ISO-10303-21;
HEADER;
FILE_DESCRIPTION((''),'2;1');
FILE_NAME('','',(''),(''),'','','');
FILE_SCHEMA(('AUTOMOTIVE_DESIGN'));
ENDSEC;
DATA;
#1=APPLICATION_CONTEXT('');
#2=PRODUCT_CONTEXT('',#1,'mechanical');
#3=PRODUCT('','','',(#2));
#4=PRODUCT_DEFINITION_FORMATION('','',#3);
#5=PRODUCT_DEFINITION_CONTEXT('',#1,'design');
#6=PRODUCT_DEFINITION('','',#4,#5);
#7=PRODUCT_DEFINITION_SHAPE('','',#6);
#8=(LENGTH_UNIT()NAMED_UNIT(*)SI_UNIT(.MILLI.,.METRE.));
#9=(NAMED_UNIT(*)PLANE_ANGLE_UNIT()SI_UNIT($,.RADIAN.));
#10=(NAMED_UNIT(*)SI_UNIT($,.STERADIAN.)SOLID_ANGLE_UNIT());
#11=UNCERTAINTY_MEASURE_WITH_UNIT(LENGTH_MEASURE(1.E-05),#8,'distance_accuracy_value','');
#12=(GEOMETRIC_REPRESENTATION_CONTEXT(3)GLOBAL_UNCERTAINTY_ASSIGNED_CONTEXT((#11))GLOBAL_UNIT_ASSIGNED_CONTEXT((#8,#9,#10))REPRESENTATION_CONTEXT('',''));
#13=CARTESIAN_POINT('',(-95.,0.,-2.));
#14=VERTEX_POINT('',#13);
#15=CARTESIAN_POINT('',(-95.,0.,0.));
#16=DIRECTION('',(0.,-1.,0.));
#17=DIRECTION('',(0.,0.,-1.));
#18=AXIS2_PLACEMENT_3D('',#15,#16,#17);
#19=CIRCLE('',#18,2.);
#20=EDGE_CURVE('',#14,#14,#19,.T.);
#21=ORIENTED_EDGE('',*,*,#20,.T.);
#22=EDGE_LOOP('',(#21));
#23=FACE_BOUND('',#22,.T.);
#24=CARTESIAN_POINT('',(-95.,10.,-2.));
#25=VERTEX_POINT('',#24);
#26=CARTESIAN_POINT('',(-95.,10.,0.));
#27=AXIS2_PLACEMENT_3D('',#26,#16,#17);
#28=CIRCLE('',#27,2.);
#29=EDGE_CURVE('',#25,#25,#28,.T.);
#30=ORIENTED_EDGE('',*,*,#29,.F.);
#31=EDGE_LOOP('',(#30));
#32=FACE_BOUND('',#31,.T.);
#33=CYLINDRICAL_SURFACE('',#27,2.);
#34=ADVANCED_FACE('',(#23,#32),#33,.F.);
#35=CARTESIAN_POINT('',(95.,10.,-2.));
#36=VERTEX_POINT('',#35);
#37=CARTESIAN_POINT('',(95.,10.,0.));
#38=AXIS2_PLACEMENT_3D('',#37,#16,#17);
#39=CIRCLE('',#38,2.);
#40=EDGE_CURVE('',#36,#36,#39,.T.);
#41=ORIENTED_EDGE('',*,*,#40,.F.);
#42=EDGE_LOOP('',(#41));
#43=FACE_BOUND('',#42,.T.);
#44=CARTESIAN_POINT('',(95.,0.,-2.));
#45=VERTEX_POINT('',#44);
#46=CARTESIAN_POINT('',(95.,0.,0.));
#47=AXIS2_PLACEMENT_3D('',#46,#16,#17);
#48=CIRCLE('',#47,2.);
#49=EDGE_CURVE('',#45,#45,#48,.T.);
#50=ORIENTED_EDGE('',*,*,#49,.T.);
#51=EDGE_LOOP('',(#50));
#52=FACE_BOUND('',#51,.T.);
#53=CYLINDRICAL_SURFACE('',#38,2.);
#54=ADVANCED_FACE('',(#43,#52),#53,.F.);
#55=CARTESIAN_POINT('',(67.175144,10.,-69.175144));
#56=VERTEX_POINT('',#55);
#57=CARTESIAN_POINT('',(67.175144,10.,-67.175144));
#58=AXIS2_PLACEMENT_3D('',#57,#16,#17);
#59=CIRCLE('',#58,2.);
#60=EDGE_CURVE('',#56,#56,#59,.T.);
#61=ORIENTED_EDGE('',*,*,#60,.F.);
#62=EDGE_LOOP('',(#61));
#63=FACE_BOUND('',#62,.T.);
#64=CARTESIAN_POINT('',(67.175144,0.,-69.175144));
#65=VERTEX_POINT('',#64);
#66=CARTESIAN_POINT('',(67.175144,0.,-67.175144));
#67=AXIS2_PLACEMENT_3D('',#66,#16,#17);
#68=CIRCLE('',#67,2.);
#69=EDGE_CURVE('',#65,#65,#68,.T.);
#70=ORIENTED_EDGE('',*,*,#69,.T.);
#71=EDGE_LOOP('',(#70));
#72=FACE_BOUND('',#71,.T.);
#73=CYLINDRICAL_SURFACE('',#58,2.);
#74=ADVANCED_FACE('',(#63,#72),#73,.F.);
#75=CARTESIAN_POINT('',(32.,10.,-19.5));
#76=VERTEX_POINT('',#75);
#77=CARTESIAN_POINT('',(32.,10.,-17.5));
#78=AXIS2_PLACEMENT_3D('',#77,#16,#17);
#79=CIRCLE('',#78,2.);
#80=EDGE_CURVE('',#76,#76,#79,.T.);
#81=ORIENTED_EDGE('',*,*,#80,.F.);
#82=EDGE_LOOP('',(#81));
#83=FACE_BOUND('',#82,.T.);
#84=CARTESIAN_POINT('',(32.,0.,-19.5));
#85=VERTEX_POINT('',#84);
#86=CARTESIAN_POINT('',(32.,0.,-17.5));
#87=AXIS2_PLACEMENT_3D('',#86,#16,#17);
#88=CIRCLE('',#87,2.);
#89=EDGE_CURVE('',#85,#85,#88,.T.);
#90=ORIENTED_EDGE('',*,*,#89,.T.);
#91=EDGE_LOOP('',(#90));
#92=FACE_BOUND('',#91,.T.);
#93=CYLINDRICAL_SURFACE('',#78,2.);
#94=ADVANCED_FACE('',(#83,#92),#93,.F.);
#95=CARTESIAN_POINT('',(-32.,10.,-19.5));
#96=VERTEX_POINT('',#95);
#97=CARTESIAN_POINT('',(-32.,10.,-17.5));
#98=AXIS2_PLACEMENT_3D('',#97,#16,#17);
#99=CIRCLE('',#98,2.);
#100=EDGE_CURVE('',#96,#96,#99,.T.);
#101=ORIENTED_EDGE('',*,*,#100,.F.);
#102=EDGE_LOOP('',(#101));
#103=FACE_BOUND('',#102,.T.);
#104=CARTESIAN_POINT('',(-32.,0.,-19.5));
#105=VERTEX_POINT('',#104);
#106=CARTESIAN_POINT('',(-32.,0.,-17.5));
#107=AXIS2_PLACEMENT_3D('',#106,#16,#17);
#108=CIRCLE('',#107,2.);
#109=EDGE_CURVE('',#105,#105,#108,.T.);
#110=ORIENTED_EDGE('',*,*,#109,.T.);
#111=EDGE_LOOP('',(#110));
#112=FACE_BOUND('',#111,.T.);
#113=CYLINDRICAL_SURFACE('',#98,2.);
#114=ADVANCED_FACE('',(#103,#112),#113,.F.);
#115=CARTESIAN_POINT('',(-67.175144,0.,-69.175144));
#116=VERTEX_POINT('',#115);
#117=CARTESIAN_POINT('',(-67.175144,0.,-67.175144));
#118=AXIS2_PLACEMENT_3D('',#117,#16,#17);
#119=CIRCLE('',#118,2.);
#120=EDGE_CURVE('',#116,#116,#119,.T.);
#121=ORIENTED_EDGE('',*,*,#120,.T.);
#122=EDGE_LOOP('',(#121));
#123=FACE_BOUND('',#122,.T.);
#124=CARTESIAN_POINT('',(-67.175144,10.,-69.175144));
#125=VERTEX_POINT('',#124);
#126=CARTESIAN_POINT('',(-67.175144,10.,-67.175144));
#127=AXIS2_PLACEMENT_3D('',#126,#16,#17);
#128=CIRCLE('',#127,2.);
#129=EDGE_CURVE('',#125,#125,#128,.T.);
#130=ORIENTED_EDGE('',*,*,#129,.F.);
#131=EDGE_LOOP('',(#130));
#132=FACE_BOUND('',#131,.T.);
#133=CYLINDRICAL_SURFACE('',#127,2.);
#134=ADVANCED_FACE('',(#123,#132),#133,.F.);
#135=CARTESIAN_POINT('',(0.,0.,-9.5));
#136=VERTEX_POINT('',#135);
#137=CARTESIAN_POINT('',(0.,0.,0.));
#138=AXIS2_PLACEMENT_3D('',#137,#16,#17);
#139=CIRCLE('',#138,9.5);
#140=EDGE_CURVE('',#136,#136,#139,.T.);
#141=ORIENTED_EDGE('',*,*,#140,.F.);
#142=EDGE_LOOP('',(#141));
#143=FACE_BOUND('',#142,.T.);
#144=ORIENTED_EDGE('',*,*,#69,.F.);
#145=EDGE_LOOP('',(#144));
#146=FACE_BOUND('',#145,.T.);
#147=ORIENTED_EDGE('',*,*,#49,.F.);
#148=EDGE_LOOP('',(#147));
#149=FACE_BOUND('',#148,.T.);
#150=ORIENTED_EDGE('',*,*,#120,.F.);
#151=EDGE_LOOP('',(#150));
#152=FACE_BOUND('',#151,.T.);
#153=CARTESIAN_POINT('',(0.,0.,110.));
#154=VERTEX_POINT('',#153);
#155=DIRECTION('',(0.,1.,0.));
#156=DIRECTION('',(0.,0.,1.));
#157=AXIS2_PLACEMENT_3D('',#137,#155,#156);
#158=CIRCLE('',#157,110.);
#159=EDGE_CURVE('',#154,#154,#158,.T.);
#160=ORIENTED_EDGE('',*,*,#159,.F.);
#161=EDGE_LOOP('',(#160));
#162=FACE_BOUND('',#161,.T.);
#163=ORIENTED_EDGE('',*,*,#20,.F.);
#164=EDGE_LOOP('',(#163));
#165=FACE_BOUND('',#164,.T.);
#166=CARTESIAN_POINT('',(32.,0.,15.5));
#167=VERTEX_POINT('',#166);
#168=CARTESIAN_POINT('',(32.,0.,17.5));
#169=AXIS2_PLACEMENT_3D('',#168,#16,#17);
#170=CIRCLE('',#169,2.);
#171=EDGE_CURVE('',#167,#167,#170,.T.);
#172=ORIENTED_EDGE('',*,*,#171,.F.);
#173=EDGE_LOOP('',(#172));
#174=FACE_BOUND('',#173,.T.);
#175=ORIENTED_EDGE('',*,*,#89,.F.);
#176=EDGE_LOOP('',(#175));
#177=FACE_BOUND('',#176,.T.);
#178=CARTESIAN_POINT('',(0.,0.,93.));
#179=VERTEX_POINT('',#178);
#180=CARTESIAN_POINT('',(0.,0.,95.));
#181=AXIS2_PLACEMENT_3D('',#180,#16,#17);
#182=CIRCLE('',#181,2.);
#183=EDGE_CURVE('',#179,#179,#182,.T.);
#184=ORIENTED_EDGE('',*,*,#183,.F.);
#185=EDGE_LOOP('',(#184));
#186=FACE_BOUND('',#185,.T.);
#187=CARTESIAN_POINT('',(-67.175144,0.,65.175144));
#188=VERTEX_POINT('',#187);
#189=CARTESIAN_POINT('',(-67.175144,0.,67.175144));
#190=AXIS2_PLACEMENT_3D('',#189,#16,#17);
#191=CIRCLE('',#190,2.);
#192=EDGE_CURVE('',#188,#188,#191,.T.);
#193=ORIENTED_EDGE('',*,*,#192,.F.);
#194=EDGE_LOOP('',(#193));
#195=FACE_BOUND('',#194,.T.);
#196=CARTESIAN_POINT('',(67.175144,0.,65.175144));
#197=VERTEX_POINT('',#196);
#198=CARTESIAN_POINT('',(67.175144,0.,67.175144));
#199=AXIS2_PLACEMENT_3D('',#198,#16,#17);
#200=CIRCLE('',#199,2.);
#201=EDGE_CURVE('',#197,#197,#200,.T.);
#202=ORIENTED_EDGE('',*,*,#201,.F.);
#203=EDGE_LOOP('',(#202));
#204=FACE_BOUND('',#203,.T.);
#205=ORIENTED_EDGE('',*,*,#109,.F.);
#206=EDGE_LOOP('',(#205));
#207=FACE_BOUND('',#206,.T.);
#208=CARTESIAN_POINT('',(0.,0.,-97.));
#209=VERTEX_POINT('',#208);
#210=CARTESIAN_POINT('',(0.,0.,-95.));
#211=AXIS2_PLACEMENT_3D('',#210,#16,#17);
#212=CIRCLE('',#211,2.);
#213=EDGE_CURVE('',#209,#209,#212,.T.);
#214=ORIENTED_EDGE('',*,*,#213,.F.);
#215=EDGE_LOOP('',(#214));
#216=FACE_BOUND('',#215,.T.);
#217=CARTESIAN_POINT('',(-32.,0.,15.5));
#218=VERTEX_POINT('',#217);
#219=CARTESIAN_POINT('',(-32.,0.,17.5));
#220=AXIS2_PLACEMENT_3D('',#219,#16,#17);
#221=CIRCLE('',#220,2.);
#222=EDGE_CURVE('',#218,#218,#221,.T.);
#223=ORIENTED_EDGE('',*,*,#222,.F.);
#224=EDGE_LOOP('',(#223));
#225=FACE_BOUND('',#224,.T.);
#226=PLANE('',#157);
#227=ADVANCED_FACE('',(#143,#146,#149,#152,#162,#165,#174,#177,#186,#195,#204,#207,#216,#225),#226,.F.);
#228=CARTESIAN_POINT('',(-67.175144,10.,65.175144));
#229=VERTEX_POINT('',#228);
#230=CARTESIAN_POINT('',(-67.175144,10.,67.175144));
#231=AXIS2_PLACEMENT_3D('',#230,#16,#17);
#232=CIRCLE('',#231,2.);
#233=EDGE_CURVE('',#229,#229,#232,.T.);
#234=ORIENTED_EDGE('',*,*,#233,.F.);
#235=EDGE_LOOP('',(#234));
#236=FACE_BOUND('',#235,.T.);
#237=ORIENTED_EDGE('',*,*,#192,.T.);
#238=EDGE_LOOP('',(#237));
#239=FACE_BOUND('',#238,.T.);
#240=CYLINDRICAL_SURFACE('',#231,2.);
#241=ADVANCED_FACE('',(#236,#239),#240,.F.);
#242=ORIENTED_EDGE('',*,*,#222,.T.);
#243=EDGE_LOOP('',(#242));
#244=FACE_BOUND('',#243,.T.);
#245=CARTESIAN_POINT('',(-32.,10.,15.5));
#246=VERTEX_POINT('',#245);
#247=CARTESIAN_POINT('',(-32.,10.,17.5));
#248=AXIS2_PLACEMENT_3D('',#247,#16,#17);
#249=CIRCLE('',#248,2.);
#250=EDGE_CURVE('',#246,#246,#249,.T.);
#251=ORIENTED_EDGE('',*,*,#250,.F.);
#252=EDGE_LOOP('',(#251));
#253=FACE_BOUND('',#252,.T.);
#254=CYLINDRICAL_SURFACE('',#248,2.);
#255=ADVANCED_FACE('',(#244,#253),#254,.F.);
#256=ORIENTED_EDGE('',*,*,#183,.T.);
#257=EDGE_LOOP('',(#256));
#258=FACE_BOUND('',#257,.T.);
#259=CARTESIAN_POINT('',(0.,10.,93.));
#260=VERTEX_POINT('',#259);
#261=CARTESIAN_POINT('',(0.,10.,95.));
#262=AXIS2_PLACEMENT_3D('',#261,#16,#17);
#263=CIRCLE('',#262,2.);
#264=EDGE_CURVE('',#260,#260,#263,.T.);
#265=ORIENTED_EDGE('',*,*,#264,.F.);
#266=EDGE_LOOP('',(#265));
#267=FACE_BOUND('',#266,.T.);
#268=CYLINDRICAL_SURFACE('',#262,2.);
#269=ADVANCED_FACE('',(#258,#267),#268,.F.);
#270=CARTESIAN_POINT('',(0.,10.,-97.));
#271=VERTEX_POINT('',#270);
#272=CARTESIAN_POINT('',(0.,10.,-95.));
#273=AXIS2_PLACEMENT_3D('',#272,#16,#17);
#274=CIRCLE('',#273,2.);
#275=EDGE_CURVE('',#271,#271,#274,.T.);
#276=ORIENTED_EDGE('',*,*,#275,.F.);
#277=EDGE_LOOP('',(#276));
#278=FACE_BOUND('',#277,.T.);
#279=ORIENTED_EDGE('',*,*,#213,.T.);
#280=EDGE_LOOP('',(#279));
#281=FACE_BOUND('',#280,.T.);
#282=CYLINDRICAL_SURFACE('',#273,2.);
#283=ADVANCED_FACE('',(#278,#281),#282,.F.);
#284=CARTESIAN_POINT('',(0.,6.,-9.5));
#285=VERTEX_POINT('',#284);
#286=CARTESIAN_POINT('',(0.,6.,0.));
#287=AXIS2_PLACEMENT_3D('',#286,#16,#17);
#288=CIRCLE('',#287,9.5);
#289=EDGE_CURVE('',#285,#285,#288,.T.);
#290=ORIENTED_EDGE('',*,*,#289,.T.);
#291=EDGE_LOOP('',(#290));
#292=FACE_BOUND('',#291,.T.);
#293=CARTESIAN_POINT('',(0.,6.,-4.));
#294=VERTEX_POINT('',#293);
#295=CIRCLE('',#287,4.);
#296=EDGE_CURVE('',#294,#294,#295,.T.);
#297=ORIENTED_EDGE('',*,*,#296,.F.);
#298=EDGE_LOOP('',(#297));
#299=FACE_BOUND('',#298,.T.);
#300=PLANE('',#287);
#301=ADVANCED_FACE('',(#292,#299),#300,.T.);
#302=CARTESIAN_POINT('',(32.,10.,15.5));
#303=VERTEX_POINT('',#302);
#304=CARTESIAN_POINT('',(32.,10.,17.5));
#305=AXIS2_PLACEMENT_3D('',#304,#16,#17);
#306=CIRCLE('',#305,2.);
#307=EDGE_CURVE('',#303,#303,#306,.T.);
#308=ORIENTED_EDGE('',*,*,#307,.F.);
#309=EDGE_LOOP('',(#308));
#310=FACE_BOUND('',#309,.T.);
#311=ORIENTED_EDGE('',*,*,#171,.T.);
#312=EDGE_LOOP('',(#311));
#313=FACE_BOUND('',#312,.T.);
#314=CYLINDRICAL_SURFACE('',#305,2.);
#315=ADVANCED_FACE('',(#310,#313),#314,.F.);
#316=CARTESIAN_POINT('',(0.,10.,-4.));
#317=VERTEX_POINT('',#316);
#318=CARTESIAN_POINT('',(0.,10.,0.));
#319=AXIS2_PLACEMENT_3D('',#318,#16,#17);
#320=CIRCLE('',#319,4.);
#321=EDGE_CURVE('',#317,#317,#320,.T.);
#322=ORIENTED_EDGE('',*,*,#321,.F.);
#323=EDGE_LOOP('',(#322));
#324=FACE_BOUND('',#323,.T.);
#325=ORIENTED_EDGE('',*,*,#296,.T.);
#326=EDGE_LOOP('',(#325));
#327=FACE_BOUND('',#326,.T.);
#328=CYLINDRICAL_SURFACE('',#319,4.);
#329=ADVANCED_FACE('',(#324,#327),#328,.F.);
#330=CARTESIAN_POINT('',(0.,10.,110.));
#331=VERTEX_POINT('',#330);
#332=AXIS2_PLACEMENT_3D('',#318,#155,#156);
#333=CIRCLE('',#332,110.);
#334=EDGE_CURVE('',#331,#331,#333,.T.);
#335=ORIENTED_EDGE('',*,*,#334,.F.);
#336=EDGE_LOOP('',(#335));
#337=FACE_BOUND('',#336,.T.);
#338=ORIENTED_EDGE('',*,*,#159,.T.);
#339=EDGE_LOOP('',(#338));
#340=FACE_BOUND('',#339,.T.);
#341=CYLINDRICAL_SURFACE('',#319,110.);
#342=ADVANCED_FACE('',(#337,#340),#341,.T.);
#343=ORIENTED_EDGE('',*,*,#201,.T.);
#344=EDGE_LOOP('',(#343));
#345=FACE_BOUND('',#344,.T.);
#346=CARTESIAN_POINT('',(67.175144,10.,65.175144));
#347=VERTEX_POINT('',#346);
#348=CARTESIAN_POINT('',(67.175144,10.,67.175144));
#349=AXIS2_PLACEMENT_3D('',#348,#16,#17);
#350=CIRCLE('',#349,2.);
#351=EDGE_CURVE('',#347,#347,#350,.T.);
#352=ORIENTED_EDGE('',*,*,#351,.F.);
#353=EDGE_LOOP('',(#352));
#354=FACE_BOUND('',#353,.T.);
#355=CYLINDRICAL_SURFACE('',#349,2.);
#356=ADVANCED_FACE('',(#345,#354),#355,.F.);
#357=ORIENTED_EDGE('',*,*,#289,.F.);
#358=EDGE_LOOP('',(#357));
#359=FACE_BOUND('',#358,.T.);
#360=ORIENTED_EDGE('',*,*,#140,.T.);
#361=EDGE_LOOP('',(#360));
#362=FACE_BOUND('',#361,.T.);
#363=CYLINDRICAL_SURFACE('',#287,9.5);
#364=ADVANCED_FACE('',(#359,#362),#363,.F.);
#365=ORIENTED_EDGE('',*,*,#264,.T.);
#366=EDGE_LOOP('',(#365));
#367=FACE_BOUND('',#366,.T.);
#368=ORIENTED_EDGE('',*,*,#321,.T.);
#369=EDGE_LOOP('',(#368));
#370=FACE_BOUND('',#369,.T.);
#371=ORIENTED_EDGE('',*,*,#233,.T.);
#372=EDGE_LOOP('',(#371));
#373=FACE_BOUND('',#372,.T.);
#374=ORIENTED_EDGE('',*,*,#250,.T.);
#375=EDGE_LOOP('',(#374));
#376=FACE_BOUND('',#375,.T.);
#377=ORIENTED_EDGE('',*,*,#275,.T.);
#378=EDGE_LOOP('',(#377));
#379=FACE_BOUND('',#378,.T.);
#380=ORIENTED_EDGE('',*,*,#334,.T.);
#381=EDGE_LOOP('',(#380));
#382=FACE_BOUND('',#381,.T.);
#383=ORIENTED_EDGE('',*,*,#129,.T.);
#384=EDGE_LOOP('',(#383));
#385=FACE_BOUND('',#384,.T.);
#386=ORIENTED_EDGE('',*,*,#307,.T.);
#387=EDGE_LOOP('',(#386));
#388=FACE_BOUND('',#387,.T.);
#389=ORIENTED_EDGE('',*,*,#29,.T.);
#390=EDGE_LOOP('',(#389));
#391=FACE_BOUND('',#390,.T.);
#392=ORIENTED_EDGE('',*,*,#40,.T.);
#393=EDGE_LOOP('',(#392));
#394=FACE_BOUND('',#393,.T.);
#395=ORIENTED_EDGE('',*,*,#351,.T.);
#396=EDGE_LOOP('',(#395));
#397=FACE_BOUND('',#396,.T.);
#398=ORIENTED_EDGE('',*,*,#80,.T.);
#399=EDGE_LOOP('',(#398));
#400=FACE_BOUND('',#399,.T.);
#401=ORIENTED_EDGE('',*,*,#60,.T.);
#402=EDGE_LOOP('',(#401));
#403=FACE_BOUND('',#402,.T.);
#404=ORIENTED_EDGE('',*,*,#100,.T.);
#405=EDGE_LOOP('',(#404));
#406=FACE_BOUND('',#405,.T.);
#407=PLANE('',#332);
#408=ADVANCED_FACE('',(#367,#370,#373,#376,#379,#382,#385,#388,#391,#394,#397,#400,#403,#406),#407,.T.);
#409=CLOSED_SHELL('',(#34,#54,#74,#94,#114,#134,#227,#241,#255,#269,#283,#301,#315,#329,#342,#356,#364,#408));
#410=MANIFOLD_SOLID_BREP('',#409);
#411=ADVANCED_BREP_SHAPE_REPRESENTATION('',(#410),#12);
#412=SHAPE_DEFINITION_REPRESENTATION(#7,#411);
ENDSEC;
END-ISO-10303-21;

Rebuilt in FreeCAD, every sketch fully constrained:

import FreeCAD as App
import Part
import Sketcher

V = App.Vector

doc = App.newDocument("Part")
params = doc.addObject("Spreadsheet::Sheet", "Params")
for row, (alias, value) in enumerate([
    ("sketch1_diameter", "220 mm"),
    ("pad1_length", "10 mm"),
    ("sketch2_diameter", "19 mm"),
    ("pocket1_length", "6 mm"),
    ("sketch3_diameter", "8 mm"),
    ("sketch4_diameter", "4 mm"),
    ("sketch5_diameter", "4 mm"),
    ("pocket4_length", "10 mm"),
], start=1):
    params.set(f"A{row}", alias)
    params.set(f"B{row}", "=" + value)
    params.setAlias(f"B{row}", alias)

body = doc.addObject("PartDesign::Body", "Body")

sketch1 = doc.addObject("Sketcher::SketchObject", "Sketch")
body.addObject(sketch1)
sketch1.AttachmentSupport = (doc.XZ_Plane, [""])
sketch1.MapMode = "FlatFace"
sketch1.addGeometry(Part.Circle(V(0, 0, 0), V(0, 0, 1), 110), False)
sketch1.addConstraint(Sketcher.Constraint("Coincident", 0, 3, -1, 1))
sketch1.addConstraint(Sketcher.Constraint("Diameter", 0, 220.0))
sketch1.setExpression("Constraints[1]", "Params.sketch1_diameter")
pad1 = doc.addObject("PartDesign::Pad", "Pad")
body.addObject(pad1)
pad1.Profile = sketch1
pad1.setExpression("Length", "Params.pad1_length")
pad1.Reversed = True

sketch2 = doc.addObject("Sketcher::SketchObject", "Sketch001")
body.addObject(sketch2)
sketch2.AttachmentSupport = (doc.XZ_Plane, [""])
sketch2.MapMode = "FlatFace"
sketch2.addGeometry(Part.Circle(V(0, 0, 0), V(0, 0, 1), 10), False)
sketch2.addConstraint(Sketcher.Constraint("Coincident", 0, 3, -1, 1))
sketch2.addConstraint(Sketcher.Constraint("Diameter", 0, 19.0))
sketch2.setExpression("Constraints[1]", "Params.sketch2_diameter")
pocket1 = doc.addObject("PartDesign::Pocket", "Pocket")
body.addObject(pocket1)
pocket1.Profile = sketch2
pocket1.setExpression("Length", "Params.pocket1_length")

sketch3 = doc.addObject("Sketcher::SketchObject", "Sketch002")
body.addObject(sketch3)
sketch3.AttachmentSupport = (doc.XZ_Plane, [""])
sketch3.MapMode = "FlatFace"
sketch3.AttachmentOffset = App.Placement(V(0, 0, -6), App.Rotation())
sketch3.addGeometry(Part.Circle(V(0, 0, 0), V(0, 0, 1), 4), False)
sketch3.addConstraint(Sketcher.Constraint("Coincident", 0, 3, -1, 1))
sketch3.addConstraint(Sketcher.Constraint("Diameter", 0, 8.0))
sketch3.setExpression("Constraints[1]", "Params.sketch3_diameter")
pocket2 = doc.addObject("PartDesign::Pocket", "Pocket001")
body.addObject(pocket2)
pocket2.Profile = sketch3
pocket2.Type = "ThroughAll"

sketch4 = doc.addObject("Sketcher::SketchObject", "Sketch003")
body.addObject(sketch4)
sketch4.AttachmentSupport = (doc.XZ_Plane, [""])
sketch4.MapMode = "FlatFace"
sketch4.addGeometry(Part.Circle(V(-32, 17.5, 0), V(0, 0, 1), 2), False)
sketch4.addGeometry(Part.Circle(V(-32, -17.5, 0), V(0, 0, 1), 2), False)
sketch4.addGeometry(Part.Circle(V(32, -17.5, 0), V(0, 0, 1), 2), False)
sketch4.addGeometry(Part.Circle(V(32, 17.5, 0), V(0, 0, 1), 2), False)
sketch4.addConstraint(Sketcher.Constraint("Equal", 0, 1))
sketch4.addConstraint(Sketcher.Constraint("Equal", 1, 2))
sketch4.addConstraint(Sketcher.Constraint("Equal", 2, 3))
sketch4.addConstraint(Sketcher.Constraint("Symmetric", 0, 3, 2, 3, -1, 1))
sketch4.addConstraint(Sketcher.Constraint("Symmetric", 1, 3, 3, 3, -1, 1))
sketch4.addConstraint(Sketcher.Constraint("Symmetric", 1, 3, 2, 3, -2))
sketch4.addConstraint(Sketcher.Constraint("Diameter", 0, 4.0))
sketch4.addConstraint(Sketcher.Constraint("DistanceX", 0, 3, -1, 1, 32.0))
sketch4.addConstraint(Sketcher.Constraint("DistanceY", 1, 3, 0, 3, 35.0))
sketch4.setExpression("Constraints[6]", "Params.sketch4_diameter")
pocket3 = doc.addObject("PartDesign::Pocket", "Pocket002")
body.addObject(pocket3)
pocket3.Profile = sketch4
pocket3.Type = "ThroughAll"

sketch5 = doc.addObject("Sketcher::SketchObject", "Sketch004")
body.addObject(sketch5)
sketch5.AttachmentSupport = (doc.XZ_Plane, [""])
sketch5.MapMode = "FlatFace"
sketch5.addGeometry(Part.Circle(V(0, 95, 0), V(0, 0, 1), 2), False)
sketch5.addGeometry(Part.Circle(V(67.2, 67.2, 0), V(0, 0, 1), 2), False)
sketch5.addGeometry(Part.Circle(V(95, 0, 0), V(0, 0, 1), 2), False)
sketch5.addGeometry(Part.Circle(V(67.2, -67.2, 0), V(0, 0, 1), 2), False)
sketch5.addGeometry(Part.Circle(V(0, -95, 0), V(0, 0, 1), 2), False)
sketch5.addGeometry(Part.Circle(V(-67.2, -67.2, 0), V(0, 0, 1), 2), False)
sketch5.addGeometry(Part.Circle(V(-95, 0, 0), V(0, 0, 1), 2), False)
sketch5.addGeometry(Part.Circle(V(-67.2, 67.2, 0), V(0, 0, 1), 2), False)
sketch5.addConstraint(Sketcher.Constraint("Equal", 0, 1))
sketch5.addConstraint(Sketcher.Constraint("Equal", 1, 2))
sketch5.addConstraint(Sketcher.Constraint("Equal", 2, 3))
sketch5.addConstraint(Sketcher.Constraint("Equal", 3, 4))
sketch5.addConstraint(Sketcher.Constraint("Equal", 4, 5))
sketch5.addConstraint(Sketcher.Constraint("Equal", 5, 6))
sketch5.addConstraint(Sketcher.Constraint("Equal", 6, 7))
sketch5.addConstraint(Sketcher.Constraint("Symmetric", 0, 3, 4, 3, -1, 1))
sketch5.addConstraint(Sketcher.Constraint("Symmetric", 1, 3, 5, 3, -1, 1))
sketch5.addConstraint(Sketcher.Constraint("Symmetric", 2, 3, 6, 3, -1, 1))
sketch5.addConstraint(Sketcher.Constraint("Symmetric", 3, 3, 7, 3, -1, 1))
sketch5.addConstraint(Sketcher.Constraint("Symmetric", 3, 3, 5, 3, -2))
sketch5.addConstraint(Sketcher.Constraint("PointOnObject", 0, 3, -2))
sketch5.addConstraint(Sketcher.Constraint("PointOnObject", 2, 3, -1))
sketch5.addConstraint(Sketcher.Constraint("Diameter", 0, 4.0))
sketch5.addConstraint(Sketcher.Constraint("DistanceY", -1, 1, 0, 3, 95.0))
sketch5.addConstraint(Sketcher.Constraint("DistanceX", -1, 1, 2, 3, 95.0))
sketch5.addConstraint(Sketcher.Constraint("DistanceY", 3, 3, 1, 3, 134.350288))
sketch5.addConstraint(Sketcher.Constraint("DistanceX", 5, 3, 3, 3, 134.350288))
sketch5.setExpression("Constraints[14]", "Params.sketch5_diameter")
pocket4 = doc.addObject("PartDesign::Pocket", "Pocket003")
body.addObject(pocket4)
pocket4.Profile = sketch5
pocket4.setExpression("Length", "Params.pocket4_length")

doc.recompute()
